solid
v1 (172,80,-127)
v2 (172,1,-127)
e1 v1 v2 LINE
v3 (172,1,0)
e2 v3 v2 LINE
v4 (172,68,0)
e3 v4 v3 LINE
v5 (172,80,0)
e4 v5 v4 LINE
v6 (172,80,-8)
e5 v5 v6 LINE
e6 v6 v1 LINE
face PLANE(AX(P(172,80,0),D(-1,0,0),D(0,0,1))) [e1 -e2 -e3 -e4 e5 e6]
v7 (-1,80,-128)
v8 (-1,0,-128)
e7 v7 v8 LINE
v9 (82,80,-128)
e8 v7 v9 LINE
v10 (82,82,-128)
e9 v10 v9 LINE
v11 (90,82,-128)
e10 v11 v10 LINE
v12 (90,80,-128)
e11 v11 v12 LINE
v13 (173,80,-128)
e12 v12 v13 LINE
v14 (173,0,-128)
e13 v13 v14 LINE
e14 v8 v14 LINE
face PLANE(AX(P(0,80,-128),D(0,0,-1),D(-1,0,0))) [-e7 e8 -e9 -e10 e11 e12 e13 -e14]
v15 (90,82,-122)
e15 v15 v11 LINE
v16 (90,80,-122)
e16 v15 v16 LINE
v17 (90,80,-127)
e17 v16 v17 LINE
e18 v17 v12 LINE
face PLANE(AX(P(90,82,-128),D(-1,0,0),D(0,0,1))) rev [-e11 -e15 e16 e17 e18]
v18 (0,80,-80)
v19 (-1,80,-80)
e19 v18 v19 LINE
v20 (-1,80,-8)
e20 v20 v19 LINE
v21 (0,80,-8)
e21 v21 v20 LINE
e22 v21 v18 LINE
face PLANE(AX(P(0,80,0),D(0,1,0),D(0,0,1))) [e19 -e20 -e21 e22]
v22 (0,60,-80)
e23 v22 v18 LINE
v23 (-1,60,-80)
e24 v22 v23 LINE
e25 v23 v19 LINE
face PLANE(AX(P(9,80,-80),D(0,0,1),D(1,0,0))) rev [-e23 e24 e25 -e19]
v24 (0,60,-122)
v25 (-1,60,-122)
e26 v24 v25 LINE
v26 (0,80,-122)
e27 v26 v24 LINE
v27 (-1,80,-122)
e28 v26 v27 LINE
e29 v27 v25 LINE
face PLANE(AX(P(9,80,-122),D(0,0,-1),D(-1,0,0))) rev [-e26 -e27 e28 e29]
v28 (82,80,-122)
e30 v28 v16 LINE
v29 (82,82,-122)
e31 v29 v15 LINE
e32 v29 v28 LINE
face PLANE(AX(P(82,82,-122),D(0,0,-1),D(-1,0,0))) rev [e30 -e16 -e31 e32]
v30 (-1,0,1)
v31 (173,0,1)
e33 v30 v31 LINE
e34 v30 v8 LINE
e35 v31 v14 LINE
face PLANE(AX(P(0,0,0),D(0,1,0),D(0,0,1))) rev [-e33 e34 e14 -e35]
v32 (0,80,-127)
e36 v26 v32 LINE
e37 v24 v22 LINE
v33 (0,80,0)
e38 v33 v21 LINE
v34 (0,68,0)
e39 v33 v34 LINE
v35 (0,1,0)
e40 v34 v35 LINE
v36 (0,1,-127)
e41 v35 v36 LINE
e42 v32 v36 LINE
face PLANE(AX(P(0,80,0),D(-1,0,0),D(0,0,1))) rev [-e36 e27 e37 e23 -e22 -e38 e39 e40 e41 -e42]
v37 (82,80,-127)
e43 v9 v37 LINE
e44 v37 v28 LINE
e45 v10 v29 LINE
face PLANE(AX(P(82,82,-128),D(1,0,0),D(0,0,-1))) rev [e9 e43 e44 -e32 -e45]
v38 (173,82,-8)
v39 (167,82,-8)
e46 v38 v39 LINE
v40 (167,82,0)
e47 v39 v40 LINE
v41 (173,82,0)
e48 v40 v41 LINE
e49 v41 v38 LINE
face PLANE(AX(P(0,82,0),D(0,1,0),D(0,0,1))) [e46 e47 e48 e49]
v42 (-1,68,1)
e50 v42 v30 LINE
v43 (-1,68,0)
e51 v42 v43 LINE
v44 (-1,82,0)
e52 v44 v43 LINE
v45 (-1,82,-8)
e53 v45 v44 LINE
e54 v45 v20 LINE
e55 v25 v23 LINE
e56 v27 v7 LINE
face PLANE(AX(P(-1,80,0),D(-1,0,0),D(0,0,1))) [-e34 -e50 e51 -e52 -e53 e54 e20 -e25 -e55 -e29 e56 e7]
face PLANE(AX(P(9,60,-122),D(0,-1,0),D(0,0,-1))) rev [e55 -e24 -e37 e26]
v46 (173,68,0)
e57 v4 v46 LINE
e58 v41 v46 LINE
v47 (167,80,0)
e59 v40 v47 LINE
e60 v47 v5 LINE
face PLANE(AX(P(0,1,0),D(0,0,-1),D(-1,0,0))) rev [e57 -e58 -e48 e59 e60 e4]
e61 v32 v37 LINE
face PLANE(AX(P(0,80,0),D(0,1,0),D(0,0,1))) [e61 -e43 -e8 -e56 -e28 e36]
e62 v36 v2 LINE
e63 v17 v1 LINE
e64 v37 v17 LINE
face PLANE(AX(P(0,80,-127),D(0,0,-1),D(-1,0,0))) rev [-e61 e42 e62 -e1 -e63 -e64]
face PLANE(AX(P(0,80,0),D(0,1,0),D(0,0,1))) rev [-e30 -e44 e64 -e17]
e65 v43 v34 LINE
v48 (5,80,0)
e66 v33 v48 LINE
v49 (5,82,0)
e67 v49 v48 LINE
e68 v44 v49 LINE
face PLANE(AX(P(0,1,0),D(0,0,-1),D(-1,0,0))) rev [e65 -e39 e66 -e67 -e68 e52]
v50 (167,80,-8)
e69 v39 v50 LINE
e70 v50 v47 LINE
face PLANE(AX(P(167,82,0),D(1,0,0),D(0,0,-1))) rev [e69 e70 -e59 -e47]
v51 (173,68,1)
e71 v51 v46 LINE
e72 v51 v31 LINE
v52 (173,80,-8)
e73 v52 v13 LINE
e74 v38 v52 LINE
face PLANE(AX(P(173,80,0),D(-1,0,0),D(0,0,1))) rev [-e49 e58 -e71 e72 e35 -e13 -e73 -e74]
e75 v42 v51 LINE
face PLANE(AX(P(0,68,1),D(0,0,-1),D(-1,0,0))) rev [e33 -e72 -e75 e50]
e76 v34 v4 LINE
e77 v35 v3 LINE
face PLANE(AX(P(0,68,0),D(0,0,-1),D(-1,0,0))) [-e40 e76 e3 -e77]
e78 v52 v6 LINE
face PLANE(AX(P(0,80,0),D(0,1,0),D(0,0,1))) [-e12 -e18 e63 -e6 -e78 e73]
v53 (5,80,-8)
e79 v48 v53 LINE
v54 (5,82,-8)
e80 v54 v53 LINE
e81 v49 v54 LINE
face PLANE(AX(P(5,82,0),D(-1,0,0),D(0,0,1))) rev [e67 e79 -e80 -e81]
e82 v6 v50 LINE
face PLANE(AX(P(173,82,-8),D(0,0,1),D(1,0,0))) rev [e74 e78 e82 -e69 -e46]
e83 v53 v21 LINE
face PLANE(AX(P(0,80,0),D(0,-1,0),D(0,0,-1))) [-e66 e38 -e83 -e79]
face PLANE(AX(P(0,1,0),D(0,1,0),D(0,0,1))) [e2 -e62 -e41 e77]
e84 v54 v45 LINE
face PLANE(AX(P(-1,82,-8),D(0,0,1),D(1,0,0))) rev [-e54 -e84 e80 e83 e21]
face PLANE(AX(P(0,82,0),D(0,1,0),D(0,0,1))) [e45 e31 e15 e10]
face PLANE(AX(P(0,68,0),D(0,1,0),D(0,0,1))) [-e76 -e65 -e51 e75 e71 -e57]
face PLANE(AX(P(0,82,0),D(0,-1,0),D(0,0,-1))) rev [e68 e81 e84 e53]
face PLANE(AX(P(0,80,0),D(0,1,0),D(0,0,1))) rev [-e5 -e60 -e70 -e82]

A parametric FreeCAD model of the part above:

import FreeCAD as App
import Part
import Sketcher
from FreeCAD import Vector

doc = App.newDocument("Part")
body = doc.addObject("PartDesign::Body", "Body")

# Sketch on XZ plane
sketch1 = body.newObject("Sketcher::SketchObject", "Sketch")
sketch1.AttachmentSupport = (doc.getObject("XZ_Plane"), [""])
sketch1.MapMode = "FlatFace"
sketch1.addGeometry(Part.LineSegment(Vector(0, -127, 0), Vector(0, 0, 0)), False)
sketch1.addGeometry(Part.LineSegment(Vector(0, 0, 0), Vector(172, 0, 0)), False)
sketch1.addGeometry(Part.LineSegment(Vector(172, 0, 0), Vector(172, -127, 0)), False)
sketch1.addGeometry(Part.LineSegment(Vector(172, -127, 0), Vector(0, -127, 0)), False)
sketch1.addConstraint(Sketcher.Constraint("Coincident", 0, 2, 1, 1))
sketch1.addConstraint(Sketcher.Constraint("Coincident", 1, 2, 2, 1))
sketch1.addConstraint(Sketcher.Constraint("Coincident", 2, 2, 3, 1))
sketch1.addConstraint(Sketcher.Constraint("Coincident", 3, 2, 0, 1))
sketch1.addConstraint(Sketcher.Constraint("Vertical", 0))
sketch1.addConstraint(Sketcher.Constraint("Horizontal", 1))
sketch1.addConstraint(Sketcher.Constraint("Vertical", 2))
sketch1.addConstraint(Sketcher.Constraint("Horizontal", 3))
sketch1.addConstraint(Sketcher.Constraint("Coincident", 0, 2, -1, 1))
sketch1.addConstraint(Sketcher.Constraint("DistanceX", 1, 1, 1, 2, 172.0))
sketch1.addConstraint(Sketcher.Constraint("DistanceY", 0, 1, 0, 2, 127.0))
pad1 = body.newObject("PartDesign::Pad", "Pad")
pad1.Profile = sketch1
pad1.Length = 1
pad1.Reversed = True

# Sketch on XZ plane
sketch2 = body.newObject("Sketcher::SketchObject", "Sketch001")
sketch2.AttachmentSupport = (doc.getObject("XZ_Plane"), [""])
sketch2.MapMode = "FlatFace"
sketch2.addGeometry(Part.LineSegment(Vector(-1, -128, 0), Vector(-1, 0, 0)), False)
sketch2.addGeometry(Part.LineSegment(Vector(-1, 0, 0), Vector(0, 0, 0)), False)
sketch2.addGeometry(Part.LineSegment(Vector(0, 0, 0), Vector(0, -127, 0)), False)
sketch2.addGeometry(Part.LineSegment(Vector(0, -127, 0), Vector(172, -127, 0)), False)
sketch2.addGeometry(Part.LineSegment(Vector(172, -127, 0), Vector(172, 0, 0)), False)
sketch2.addGeometry(Part.LineSegment(Vector(172, 0, 0), Vector(173, 0, 0)), False)
sketch2.addGeometry(Part.LineSegment(Vector(173, 0, 0), Vector(173, -128, 0)), False)
sketch2.addGeometry(Part.LineSegment(Vector(173, -128, 0), Vector(-1, -128, 0)), False)
sketch2.addConstraint(Sketcher.Constraint("Coincident", 0, 2, 1, 1))
sketch2.addConstraint(Sketcher.Constraint("Coincident", 1, 2, 2, 1))
sketch2.addConstraint(Sketcher.Constraint("Coincident", 2, 2, 3, 1))
sketch2.addConstraint(Sketcher.Constraint("Coincident", 3, 2, 4, 1))
sketch2.addConstraint(Sketcher.Constraint("Coincident", 4, 2, 5, 1))
sketch2.addConstraint(Sketcher.Constraint("Coincident", 5, 2, 6, 1))
sketch2.addConstraint(Sketcher.Constraint("Coincident", 6, 2, 7, 1))
sketch2.addConstraint(Sketcher.Constraint("Coincident", 7, 2, 0, 1))
sketch2.addConstraint(Sketcher.Constraint("Vertical", 0))
sketch2.addConstraint(Sketcher.Constraint("Horizontal", 1))
sketch2.addConstraint(Sketcher.Constraint("Vertical", 2))
sketch2.addConstraint(Sketcher.Constraint("Horizontal", 3))
sketch2.addConstraint(Sketcher.Constraint("Vertical", 4))
sketch2.addConstraint(Sketcher.Constraint("Horizontal", 5))
sketch2.addConstraint(Sketcher.Constraint("Vertical", 6))
sketch2.addConstraint(Sketcher.Constraint("Horizontal", 7))
sketch2.addConstraint(Sketcher.Constraint("Coincident", 1, 2, -1, 1))
sketch2.addConstraint(Sketcher.Constraint("PointOnObject", 4, 2, -1))
sketch2.addConstraint(Sketcher.Constraint("Equal", 1, 5))
sketch2.addConstraint(Sketcher.Constraint("DistanceX", 1, 1, 1, 2, 1.0))
sketch2.addConstraint(Sketcher.Constraint("DistanceX", 3, 1, 3, 2, 172.0))
sketch2.addConstraint(Sketcher.Constraint("DistanceY", 0, 1, 0, 2, 128.0))
sketch2.addConstraint(Sketcher.Constraint("DistanceY", 2, 2, 2, 1, 127.0))
pad2 = body.newObject("PartDesign::Pad", "Pad001")
pad2.Profile = sketch2
pad2.Length = 80
pad2.Reversed = True

# Sketch on XZ plane
sketch3 = body.newObject("Sketcher::SketchObject", "Sketch002")
sketch3.AttachmentSupport = (doc.getObject("XZ_Plane"), [""])
sketch3.MapMode = "FlatFace"
sketch3.addGeometry(Part.LineSegment(Vector(-1, 0, 0), Vector(-1, 1, 0)), False)
sketch3.addGeometry(Part.LineSegment(Vector(-1, 1, 0), Vector(173, 1, 0)), False)
sketch3.addGeometry(Part.LineSegment(Vector(173, 1, 0), Vector(173, 0, 0)), False)
sketch3.addGeometry(Part.LineSegment(Vector(173, 0, 0), Vector(-1, 0, 0)), False)
sketch3.addConstraint(Sketcher.Constraint("Coincident", 0, 2, 1, 1))
sketch3.addConstraint(Sketcher.Constraint("Coincident", 1, 2, 2, 1))
sketch3.addConstraint(Sketcher.Constraint("Coincident", 2, 2, 3, 1))
sketch3.addConstraint(Sketcher.Constraint("Coincident", 3, 2, 0, 1))
sketch3.addConstraint(Sketcher.Constraint("Vertical", 0))
sketch3.addConstraint(Sketcher.Constraint("Horizontal", 1))
sketch3.addConstraint(Sketcher.Constraint("Vertical", 2))
sketch3.addConstraint(Sketcher.Constraint("Horizontal", 3))
sketch3.addConstraint(Sketcher.Constraint("PointOnObject", 2, 2, -1))
sketch3.addConstraint(Sketcher.Constraint("DistanceX", 1, 1, 1, 2, 174.0))
sketch3.addConstraint(Sketcher.Constraint("DistanceY", 0, 1, 0, 2, 1.0))
sketch3.addConstraint(Sketcher.Constraint("DistanceX", 0, 2, -1, 1, 1.0))
pad3 = body.newObject("PartDesign::Pad", "Pad002")
pad3.Profile = sketch3
pad3.Length = 68
pad3.Reversed = True

# Sketch on XZ plane
sketch4 = body.newObject("Sketcher::SketchObject", "Sketch003")
sketch4.AttachmentSupport = (doc.getObject("XZ_Plane"), [""])
sketch4.MapMode = "FlatFace"
sketch4.AttachmentOffset = App.Placement(Vector(0, 0, -80), App.Rotation())
sketch4.addGeometry(Part.LineSegment(Vector(-1, -8, 0), Vector(-1, 0, 0)), False)
sketch4.addGeometry(Part.LineSegment(Vector(-1, 0, 0), Vector(5, 0, 0)), False)
sketch4.addGeometry(Part.LineSegment(Vector(5, 0, 0), Vector(5, -8, 0)), False)
sketch4.addGeometry(Part.LineSegment(Vector(5, -8, 0), Vector(-1, -8, 0)), False)
sketch4.addGeometry(Part.LineSegment(Vector(167, -8, 0), Vector(167, 0, 0)), False)
sketch4.addGeometry(Part.LineSegment(Vector(167, 0, 0), Vector(173, 0, 0)), False)
sketch4.addGeometry(Part.LineSegment(Vector(173, 0, 0), Vector(173, -8, 0)), False)
sketch4.addGeometry(Part.LineSegment(Vector(173, -8, 0), Vector(167, -8, 0)), False)
sketch4.addGeometry(Part.LineSegment(Vector(82, -128, 0), Vector(82, -122, 0)), False)
sketch4.addGeometry(Part.LineSegment(Vector(82, -122, 0), Vector(90, -122, 0)), False)
sketch4.addGeometry(Part.LineSegment(Vector(90, -122, 0), Vector(90, -128, 0)), False)
sketch4.addGeometry(Part.LineSegment(Vector(90, -128, 0), Vector(82, -128, 0)), False)
sketch4.addConstraint(Sketcher.Constraint("Coincident", 0, 2, 1, 1))
sketch4.addConstraint(Sketcher.Constraint("Coincident", 1, 2, 2, 1))
sketch4.addConstraint(Sketcher.Constraint("Coincident", 2, 2, 3, 1))
sketch4.addConstraint(Sketcher.Constraint("Coincident", 3, 2, 0, 1))
sketch4.addConstraint(Sketcher.Constraint("Coincident", 4, 2, 5, 1))
sketch4.addConstraint(Sketcher.Constraint("Coincident", 5, 2, 6, 1))
sketch4.addConstraint(Sketcher.Constraint("Coincident", 6, 2, 7, 1))
sketch4.addConstraint(Sketcher.Constraint("Coincident", 7, 2, 4, 1))
sketch4.addConstraint(Sketcher.Constraint("Coincident", 8, 2, 9, 1))
sketch4.addConstraint(Sketcher.Constraint("Coincident", 9, 2, 10, 1))
sketch4.addConstraint(Sketcher.Constraint("Coincident", 10, 2, 11, 1))
sketch4.addConstraint(Sketcher.Constraint("Coincident", 11, 2, 8, 1))
sketch4.addConstraint(Sketcher.Constraint("Vertical", 0))
sketch4.addConstraint(Sketcher.Constraint("Horizontal", 1))
sketch4.addConstraint(Sketcher.Constraint("Vertical", 2))
sketch4.addConstraint(Sketcher.Constraint("Horizontal", 3))
sketch4.addConstraint(Sketcher.Constraint("Vertical", 4))
sketch4.addConstraint(Sketcher.Constraint("Horizontal", 5))
sketch4.addConstraint(Sketcher.Constraint("Vertical", 6))
sketch4.addConstraint(Sketcher.Constraint("Horizontal", 7))
sketch4.addConstraint(Sketcher.Constraint("Vertical", 8))
sketch4.addConstraint(Sketcher.Constraint("Horizontal", 9))
sketch4.addConstraint(Sketcher.Constraint("Vertical", 10))
sketch4.addConstraint(Sketcher.Constraint("Horizontal", 11))
sketch4.addConstraint(Sketcher.Constraint("PointOnObject", 0, 2, -1))
sketch4.addConstraint(Sketcher.Constraint("PointOnObject", 4, 2, -1))
sketch4.addConstraint(Sketcher.Constraint("Horizontal", 3, 2, 6, 2))
sketch4.addConstraint(Sketcher.Constraint("Equal", 3, 5))
sketch4.addConstraint(Sketcher.Constraint("Equal", 11, 0))
sketch4.addConstraint(Sketcher.Constraint("Equal", 7, 8))
sketch4.addConstraint(Sketcher.Constraint("DistanceX", 1, 1, 1, 2, 6.0))
sketch4.addConstraint(Sketcher.Constraint("DistanceX", 9, 1, 9, 2, 8.0))
sketch4.addConstraint(Sketcher.Constraint("DistanceX", 0, 2, -1, 1, 1.0))
sketch4.addConstraint(Sketcher.Constraint("DistanceX", -1, 1, 4, 2, 167.0))
sketch4.addConstraint(Sketcher.Constraint("DistanceX", -1, 1, 8, 2, 82.0))
sketch4.addConstraint(Sketcher.Constraint("DistanceY", 8, 2, -1, 1, 122.0))
pad4 = body.newObject("PartDesign::Pad", "Pad003")
pad4.Profile = sketch4
pad4.Length = 2
pad4.Reversed = True

# Sketch on YZ plane
sketch5 = body.newObject("Sketcher::SketchObject", "Sketch004")
sketch5.AttachmentSupport = (doc.getObject("YZ_Plane"), [""])
sketch5.MapMode = "FlatFace"
sketch5.AttachmentOffset = App.Placement(Vector(0, 0, -1), App.Rotation())
sketch5.addGeometry(Part.LineSegment(Vector(80, -122, 0), Vector(60, -122, 0)), False)
sketch5.addGeometry(Part.LineSegment(Vector(60, -122, 0), Vector(60, -80, 0)), False)
sketch5.addGeometry(Part.LineSegment(Vector(60, -80, 0), Vector(80, -80, 0)), False)
sketch5.addGeometry(Part.LineSegment(Vector(80, -80, 0), Vector(80, -122, 0)), False)
sketch5.addConstraint(Sketcher.Constraint("Coincident", 0, 2, 1, 1))
sketch5.addConstraint(Sketcher.Constraint("Coincident", 1, 2, 2, 1))
sketch5.addConstraint(Sketcher.Constraint("Coincident", 2, 2, 3, 1))
sketch5.addConstraint(Sketcher.Constraint("Coincident", 3, 2, 0, 1))
sketch5.addConstraint(Sketcher.Constraint("Horizontal", 0))
sketch5.addConstraint(Sketcher.Constraint("Vertical", 1))
sketch5.addConstraint(Sketcher.Constraint("Horizontal", 2))
sketch5.addConstraint(Sketcher.Constraint("Vertical", 3))
sketch5.addConstraint(Sketcher.Constraint("DistanceX", 0, 2, 0, 1, 20.0))
sketch5.addConstraint(Sketcher.Constraint("DistanceY", 1, 1, 1, 2, 42.0))
sketch5.addConstraint(Sketcher.Constraint("DistanceX", -1, 1, 0, 2, 60.0))
sketch5.addConstraint(Sketcher.Constraint("DistanceY", 0, 2, -1, 1, 122.0))
pocket1 = body.newObject("PartDesign::Pocket", "Pocket")
pocket1.Profile = sketch5
pocket1.Length = 10
pocket1.Reversed = True

doc.recompute()
